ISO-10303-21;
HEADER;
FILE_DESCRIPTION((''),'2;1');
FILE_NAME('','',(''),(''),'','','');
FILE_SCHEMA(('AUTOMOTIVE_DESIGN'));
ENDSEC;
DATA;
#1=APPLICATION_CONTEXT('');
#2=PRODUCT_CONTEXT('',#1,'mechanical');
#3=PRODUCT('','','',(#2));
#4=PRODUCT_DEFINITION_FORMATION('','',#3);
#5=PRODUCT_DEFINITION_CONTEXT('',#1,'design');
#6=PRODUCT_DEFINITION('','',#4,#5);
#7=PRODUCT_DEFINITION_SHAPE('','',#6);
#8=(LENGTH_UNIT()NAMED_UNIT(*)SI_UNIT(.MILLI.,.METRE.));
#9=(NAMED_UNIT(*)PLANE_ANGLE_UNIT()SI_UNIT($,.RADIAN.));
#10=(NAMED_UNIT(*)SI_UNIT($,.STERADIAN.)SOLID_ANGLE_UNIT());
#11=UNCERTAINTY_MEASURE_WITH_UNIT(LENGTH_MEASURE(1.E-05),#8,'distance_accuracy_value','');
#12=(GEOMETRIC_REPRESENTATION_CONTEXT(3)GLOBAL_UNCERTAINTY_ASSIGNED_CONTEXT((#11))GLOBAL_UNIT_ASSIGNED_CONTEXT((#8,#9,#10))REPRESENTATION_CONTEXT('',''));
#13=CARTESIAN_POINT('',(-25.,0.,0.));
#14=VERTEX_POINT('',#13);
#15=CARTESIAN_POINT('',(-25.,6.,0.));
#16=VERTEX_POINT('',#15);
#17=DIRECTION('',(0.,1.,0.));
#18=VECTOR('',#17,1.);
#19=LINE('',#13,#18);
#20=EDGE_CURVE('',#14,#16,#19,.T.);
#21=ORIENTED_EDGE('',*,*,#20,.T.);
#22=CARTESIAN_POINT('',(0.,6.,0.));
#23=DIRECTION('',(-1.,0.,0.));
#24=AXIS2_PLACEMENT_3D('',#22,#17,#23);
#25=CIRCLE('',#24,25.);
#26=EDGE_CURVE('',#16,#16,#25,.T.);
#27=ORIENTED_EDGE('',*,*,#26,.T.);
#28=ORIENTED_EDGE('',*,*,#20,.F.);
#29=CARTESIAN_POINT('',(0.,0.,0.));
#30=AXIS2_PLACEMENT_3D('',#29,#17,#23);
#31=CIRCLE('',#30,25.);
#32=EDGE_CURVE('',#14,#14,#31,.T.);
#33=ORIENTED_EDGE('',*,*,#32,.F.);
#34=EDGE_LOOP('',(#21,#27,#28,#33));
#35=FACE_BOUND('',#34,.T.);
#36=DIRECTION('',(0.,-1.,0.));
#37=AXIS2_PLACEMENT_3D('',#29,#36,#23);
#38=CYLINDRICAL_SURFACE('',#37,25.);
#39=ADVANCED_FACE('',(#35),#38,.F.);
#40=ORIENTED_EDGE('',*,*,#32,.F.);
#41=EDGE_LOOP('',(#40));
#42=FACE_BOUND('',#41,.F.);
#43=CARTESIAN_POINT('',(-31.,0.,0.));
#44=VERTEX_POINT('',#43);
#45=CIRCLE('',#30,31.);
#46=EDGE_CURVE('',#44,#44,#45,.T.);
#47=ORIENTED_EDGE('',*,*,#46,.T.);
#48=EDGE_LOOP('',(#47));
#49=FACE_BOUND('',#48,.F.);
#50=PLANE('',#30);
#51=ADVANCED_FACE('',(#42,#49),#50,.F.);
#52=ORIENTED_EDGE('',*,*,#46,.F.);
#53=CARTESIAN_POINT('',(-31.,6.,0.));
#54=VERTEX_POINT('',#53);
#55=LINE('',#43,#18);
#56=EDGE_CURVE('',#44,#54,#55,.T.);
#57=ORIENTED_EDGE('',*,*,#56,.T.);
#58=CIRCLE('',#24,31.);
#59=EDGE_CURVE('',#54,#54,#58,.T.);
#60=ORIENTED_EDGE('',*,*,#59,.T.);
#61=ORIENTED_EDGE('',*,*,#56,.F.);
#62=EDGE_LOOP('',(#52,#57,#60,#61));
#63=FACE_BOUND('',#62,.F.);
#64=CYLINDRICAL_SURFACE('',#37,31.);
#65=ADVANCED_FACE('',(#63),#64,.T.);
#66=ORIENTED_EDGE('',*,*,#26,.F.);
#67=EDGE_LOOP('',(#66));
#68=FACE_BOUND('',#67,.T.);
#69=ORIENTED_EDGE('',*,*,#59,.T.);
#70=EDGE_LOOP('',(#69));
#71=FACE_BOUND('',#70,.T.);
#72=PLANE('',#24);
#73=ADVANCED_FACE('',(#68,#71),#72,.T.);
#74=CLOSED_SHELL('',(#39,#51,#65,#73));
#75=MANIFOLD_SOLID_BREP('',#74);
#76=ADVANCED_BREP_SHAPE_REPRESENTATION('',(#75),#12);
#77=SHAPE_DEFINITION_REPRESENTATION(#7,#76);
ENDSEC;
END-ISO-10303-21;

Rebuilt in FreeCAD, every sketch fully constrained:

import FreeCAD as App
import Part
import Sketcher
from FreeCAD import Vector

doc = App.newDocument("Part")
params = doc.addObject("Spreadsheet::Sheet", "Params")
for row, (alias, value) in enumerate([
    ("sketch1_diameter", "62 mm"),
    ("sketch1_diameter2", "50 mm"),
    ("pad1_length", "6 mm"),
], start=1):
    params.set(f"A{row}", alias)
    params.set(f"B{row}", "=" + value)
    params.setAlias(f"B{row}", alias)

body = doc.addObject("PartDesign::Body", "Body")

sketch1 = body.newObject("Sketcher::SketchObject", "Sketch")
sketch1.AttachmentSupport = (doc.getObject("XZ_Plane"), [""])
sketch1.MapMode = "FlatFace"
sketch1.addGeometry([
    Part.Circle(Vector(0, 0, 0), Vector(0, 0, 1), 31),
    Part.Circle(Vector(0, 0, 0), Vector(0, 0, 1), 25),
], False)
sketch1.addConstraint([
    Sketcher.Constraint("Coincident", 0, 3, -1, 1),
    Sketcher.Constraint("Coincident", 1, 3, -1, 1),
    Sketcher.Constraint("Diameter", 0, 62.0),
    Sketcher.Constraint("Diameter", 1, 50.0),
])
sketch1.setExpression("Constraints[2]", "Params.sketch1_diameter")
sketch1.setExpression("Constraints[3]", "Params.sketch1_diameter2")
pad1 = body.newObject("PartDesign::Pad", "Pad")
pad1.Profile = sketch1
pad1.setExpression("Length", "Params.pad1_length")
pad1.Reversed = True

doc.recompute()
